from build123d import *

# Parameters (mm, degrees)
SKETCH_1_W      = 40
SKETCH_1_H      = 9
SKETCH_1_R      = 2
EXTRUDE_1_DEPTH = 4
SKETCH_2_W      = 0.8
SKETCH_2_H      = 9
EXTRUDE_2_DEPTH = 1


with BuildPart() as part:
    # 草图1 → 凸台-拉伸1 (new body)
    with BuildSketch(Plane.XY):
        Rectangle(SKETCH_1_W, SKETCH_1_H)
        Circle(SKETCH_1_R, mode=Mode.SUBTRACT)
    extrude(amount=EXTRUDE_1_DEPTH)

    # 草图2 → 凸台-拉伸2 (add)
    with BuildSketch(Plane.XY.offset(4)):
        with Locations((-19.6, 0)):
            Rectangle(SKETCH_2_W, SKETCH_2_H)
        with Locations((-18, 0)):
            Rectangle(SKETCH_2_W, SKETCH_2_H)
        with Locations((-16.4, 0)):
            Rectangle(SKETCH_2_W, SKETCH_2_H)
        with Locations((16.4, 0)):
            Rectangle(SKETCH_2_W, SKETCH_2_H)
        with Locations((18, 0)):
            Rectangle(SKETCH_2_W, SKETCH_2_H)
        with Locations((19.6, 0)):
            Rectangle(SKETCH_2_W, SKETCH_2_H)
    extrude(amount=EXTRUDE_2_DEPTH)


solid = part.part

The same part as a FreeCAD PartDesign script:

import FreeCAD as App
import Part
import Sketcher
Q = App.Units.Quantity

doc = App.newDocument("Part")
params = doc.addObject("Spreadsheet::Sheet", "Params")
for row, (alias, value) in enumerate([
    ("sketch1_diameter", "4 mm"),
    ("sketch1_width", "40 mm"),
    ("sketch1_height", "9 mm"),
    ("pad1_length", "4 mm"),
    ("sketch2_height", "9 mm"),
    ("sketch2_width", "0.8 mm"),
    ("pad2_length", "1 mm"),
], start=1):
    params.set(f"A{row}", alias)
    params.set(f"B{row}", "=" + value)
    params.setAlias(f"B{row}", alias)

body = doc.addObject("PartDesign::Body", "Body")

sketch1 = body.newObject("Sketcher::SketchObject", "Sketch")
sketch1.AttachmentSupport = (doc.getObject("XY_Plane"), [""])
sketch1.MapMode = "FlatFace"
sketch1.addGeometry([
    Part.LineSegment(App.Vector(-20, 4.5, 0), App.Vector(-20, -4.5, 0)),
    Part.LineSegment(App.Vector(-20, -4.5, 0), App.Vector(20, -4.5, 0)),
    Part.LineSegment(App.Vector(20, -4.5, 0), App.Vector(20, 4.5, 0)),
    Part.LineSegment(App.Vector(20, 4.5, 0), App.Vector(-20, 4.5, 0)),
    Part.Circle(App.Vector(0, 0, 0), App.Vector(0, 0, 1), 2),
], False)
sketch1.addConstraint([
    Sketcher.Constraint("Coincident", 0, 2, 1, 1),
    Sketcher.Constraint("Coincident", 1, 2, 2, 1),
    Sketcher.Constraint("Coincident", 2, 2, 3, 1),
    Sketcher.Constraint("Coincident", 3, 2, 0, 1),
    Sketcher.Constraint("Vertical", 0),
    Sketcher.Constraint("Horizontal", 1),
    Sketcher.Constraint("Vertical", 2),
    Sketcher.Constraint("Horizontal", 3),
    Sketcher.Constraint("Coincident", 4, 3, -1, 1),
    Sketcher.Constraint("Symmetric", 0, 2, 2, 2, -1, 1),
    Sketcher.Constraint("Diameter", 4, Q("4 mm")),
    Sketcher.Constraint("DistanceX", 1, 1, 1, 2, Q("40 mm")),
    Sketcher.Constraint("DistanceY", 0, 2, 0, 1, Q("9 mm")),
])
sketch1.setExpression("Constraints[10]", "Params.sketch1_diameter")
sketch1.setExpression("Constraints[11]", "Params.sketch1_width")
sketch1.setExpression("Constraints[12]", "Params.sketch1_height")
pad1 = body.newObject("PartDesign::Pad", "Pad")
pad1.Profile = sketch1
pad1.setExpression("Length", "Params.pad1_length")

sketch2 = body.newObject("Sketcher::SketchObject", "Sketch001")
sketch2.AttachmentSupport = (doc.getObject("XY_Plane"), [""])
sketch2.MapMode = "FlatFace"
sketch2.AttachmentOffset = App.Placement(App.Vector(0, 0, 4), App.Rotation())
sketch2.addGeometry([
    Part.LineSegment(App.Vector(-20, 4.5, 0), App.Vector(-20, -4.5, 0)),
    Part.LineSegment(App.Vector(-20, -4.5, 0), App.Vector(-19.2, -4.5, 0)),
    Part.LineSegment(App.Vector(-19.2, -4.5, 0), App.Vector(-19.2, 4.5, 0)),
    Part.LineSegment(App.Vector(-19.2, 4.5, 0), App.Vector(-20, 4.5, 0)),
    Part.LineSegment(App.Vector(-18.4, 4.5, 0), App.Vector(-18.4, -4.5, 0)),
    Part.LineSegment(App.Vector(-18.4, -4.5, 0), App.Vector(-17.6, -4.5, 0)),
    Part.LineSegment(App.Vector(-17.6, -4.5, 0), App.Vector(-17.6, 4.5, 0)),
    Part.LineSegment(App.Vector(-17.6, 4.5, 0), App.Vector(-18.4, 4.5, 0)),
    Part.LineSegment(App.Vector(-16.8, 4.5, 0), App.Vector(-16.8, -4.5, 0)),
    Part.LineSegment(App.Vector(-16.8, -4.5, 0), App.Vector(-16, -4.5, 0)),
    Part.LineSegment(App.Vector(-16, -4.5, 0), App.Vector(-16, 4.5, 0)),
    Part.LineSegment(App.Vector(-16, 4.5, 0), App.Vector(-16.8, 4.5, 0)),
    Part.LineSegment(App.Vector(16, 4.5, 0), App.Vector(16, -4.5, 0)),
    Part.LineSegment(App.Vector(16, -4.5, 0), App.Vector(16.8, -4.5, 0)),
    Part.LineSegment(App.Vector(16.8, -4.5, 0), App.Vector(16.8, 4.5, 0)),
    Part.LineSegment(App.Vector(16.8, 4.5, 0), App.Vector(16, 4.5, 0)),
    Part.LineSegment(App.Vector(17.6, 4.5, 0), App.Vector(17.6, -4.5, 0)),
    Part.LineSegment(App.Vector(17.6, -4.5, 0), App.Vector(18.4, -4.5, 0)),
    Part.LineSegment(App.Vector(18.4, -4.5, 0), App.Vector(18.4, 4.5, 0)),
    Part.LineSegment(App.Vector(18.4, 4.5, 0), App.Vector(17.6, 4.5, 0)),
    Part.LineSegment(App.Vector(19.2, 4.5, 0), App.Vector(19.2, -4.5, 0)),
    Part.LineSegment(App.Vector(19.2, -4.5, 0), App.Vector(20, -4.5, 0)),
    Part.LineSegment(App.Vector(20, -4.5, 0), App.Vector(20, 4.5, 0)),
    Part.LineSegment(App.Vector(20, 4.5, 0), App.Vector(19.2, 4.5, 0)),
], False)
sketch2.addConstraint([
    Sketcher.Constraint("Coincident", 0, 2, 1, 1),
    Sketcher.Constraint("Coincident", 1, 2, 2, 1),
    Sketcher.Constraint("Coincident", 2, 2, 3, 1),
    Sketcher.Constraint("Coincident", 3, 2, 0, 1),
    Sketcher.Constraint("Coincident", 4, 2, 5, 1),
    Sketcher.Constraint("Coincident", 5, 2, 6, 1),
    Sketcher.Constraint("Coincident", 6, 2, 7, 1),
    Sketcher.Constraint("Coincident", 7, 2, 4, 1),
    Sketcher.Constraint("Coincident", 8, 2, 9, 1),
    Sketcher.Constraint("Coincident", 9, 2, 10, 1),
    Sketcher.Constraint("Coincident", 10, 2, 11, 1),
    Sketcher.Constraint("Coincident", 11, 2, 8, 1),
    Sketcher.Constraint("Coincident", 12, 2, 13, 1),
    Sketcher.Constraint("Coincident", 13, 2, 14, 1),
    Sketcher.Constraint("Coincident", 14, 2, 15, 1),
    Sketcher.Constraint("Coincident", 15, 2, 12, 1),
    Sketcher.Constraint("Coincident", 16, 2, 17, 1),
    Sketcher.Constraint("Coincident", 17, 2, 18, 1),
    Sketcher.Constraint("Coincident", 18, 2, 19, 1),
    Sketcher.Constraint("Coincident", 19, 2, 16, 1),
    Sketcher.Constraint("Coincident", 20, 2, 21, 1),
    Sketcher.Constraint("Coincident", 21, 2, 22, 1),
    Sketcher.Constraint("Coincident", 22, 2, 23, 1),
    Sketcher.Constraint("Coincident", 23, 2, 20, 1),
    Sketcher.Constraint("Vertical", 0),
    Sketcher.Constraint("Horizontal", 1),
    Sketcher.Constraint("Vertical", 2),
    Sketcher.Constraint("Horizontal", 3),
    Sketcher.Constraint("Vertical", 4),
    Sketcher.Constraint("Horizontal", 5),
    Sketcher.Constraint("Vertical", 6),
    Sketcher.Constraint("Horizontal", 7),
    Sketcher.Constraint("Vertical", 8),
    Sketcher.Constraint("Horizontal", 9),
    Sketcher.Constraint("Vertical", 10),
    Sketcher.Constraint("Horizontal", 11),
    Sketcher.Constraint("Vertical", 12),
    Sketcher.Constraint("Horizontal", 13),
    Sketcher.Constraint("Vertical", 14),
    Sketcher.Constraint("Horizontal", 15),
    Sketcher.Constraint("Vertical", 16),
    Sketcher.Constraint("Horizontal", 17),
    Sketcher.Constraint("Vertical", 18),
    Sketcher.Constraint("Horizontal", 19),
    Sketcher.Constraint("Vertical", 20),
    Sketcher.Constraint("Horizontal", 21),
    Sketcher.Constraint("Vertical", 22),
    Sketcher.Constraint("Horizontal", 23),
    Sketcher.Constraint("Symmetric", 10, 2, 12, 2, -1, 1),
    Sketcher.Constraint("Symmetric", 8, 2, 14, 2, -1, 1),
    Sketcher.Constraint("Symmetric", 6, 2, 16, 2, -1, 1),
    Sketcher.Constraint("Symmetric", 4, 2, 18, 2, -1, 1),
    Sketcher.Constraint("Symmetric", 2, 2, 20, 2, -1, 1),
    Sketcher.Constraint("Symmetric", 0, 2, 22, 2, -1, 1),
    Sketcher.Constraint("Horizontal", 1, 2, 4, 2),
    Sketcher.Constraint("Horizontal", 3, 2, 6, 2),
    Sketcher.Constraint("Horizontal", 5, 2, 8, 2),
    Sketcher.Constraint("Horizontal", 7, 2, 10, 2),
    Sketcher.Constraint("Horizontal", 9, 2, 12, 2),
    Sketcher.Constraint("Equal", 3, 5),
    Sketcher.Constraint("Equal", 7, 9),
    Sketcher.Constraint("DistanceY", 0, 2, 0, 1, Q("9 mm")),
    Sketcher.Constraint("DistanceX", 1, 1, 1, 2, Q("0.8 mm")),
    Sketcher.Constraint("DistanceX", 0, 2, -1, 1, Q("20 mm")),
    Sketcher.Constraint("DistanceX", 9, 2, -1, 1, Q("16 mm")),
    Sketcher.Constraint("DistanceX", 4, 2, -1, 1, Q("18.4 mm")),
])
sketch2.setExpression("Constraints[61]", "Params.sketch2_height")
sketch2.setExpression("Constraints[62]", "Params.sketch2_width")
pad2 = body.newObject("PartDesign::Pad", "Pad001")
pad2.Profile = sketch2
pad2.setExpression("Length", "Params.pad2_length")

doc.recompute()
